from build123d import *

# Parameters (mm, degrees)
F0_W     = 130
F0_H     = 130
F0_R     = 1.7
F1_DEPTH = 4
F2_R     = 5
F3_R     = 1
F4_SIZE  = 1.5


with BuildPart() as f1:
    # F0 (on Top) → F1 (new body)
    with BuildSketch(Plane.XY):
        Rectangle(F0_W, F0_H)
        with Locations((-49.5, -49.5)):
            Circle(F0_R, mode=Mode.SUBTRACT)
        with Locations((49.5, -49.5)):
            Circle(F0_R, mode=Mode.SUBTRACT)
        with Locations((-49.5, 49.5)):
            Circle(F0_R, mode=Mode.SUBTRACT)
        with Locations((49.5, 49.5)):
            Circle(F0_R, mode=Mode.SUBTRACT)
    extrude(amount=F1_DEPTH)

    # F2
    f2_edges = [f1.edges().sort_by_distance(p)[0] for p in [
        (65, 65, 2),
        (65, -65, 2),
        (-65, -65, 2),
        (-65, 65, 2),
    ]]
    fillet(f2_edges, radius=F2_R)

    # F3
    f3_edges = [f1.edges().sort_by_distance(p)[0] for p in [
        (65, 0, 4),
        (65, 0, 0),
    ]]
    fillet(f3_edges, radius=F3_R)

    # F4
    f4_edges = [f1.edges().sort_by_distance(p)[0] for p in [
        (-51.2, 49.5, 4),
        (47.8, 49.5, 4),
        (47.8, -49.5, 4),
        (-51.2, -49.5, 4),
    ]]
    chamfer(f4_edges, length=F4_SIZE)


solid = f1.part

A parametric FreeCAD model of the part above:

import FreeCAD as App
import Part
import Sketcher
from FreeCAD import Vector
Q = App.Units.Quantity


def edges_at(feature, points):
    """Names of the edges that pass closest to the given points."""
    edges = feature.Shape.Edges
    near = lambda p: min(range(len(edges)), key=lambda i: edges[i].distToShape(Part.Vertex(*p))[0])
    return sorted({f"Edge{near(p) + 1}" for p in points})

doc = App.newDocument("Part")
body = doc.addObject("PartDesign::Body", "Body")

# Sketch on XY plane
sketch1 = doc.addObject("Sketcher::SketchObject", "Sketch")
body.addObject(sketch1)
sketch1.AttachmentSupport = (doc.XY_Plane, [""])
sketch1.MapMode = "FlatFace"
sketch1.addGeometry(Part.LineSegment(Vector(-65, 65, 0), Vector(-65, -65, 0)), False)
sketch1.addGeometry(Part.LineSegment(Vector(-65, -65, 0), Vector(65, -65, 0)), False)
sketch1.addGeometry(Part.LineSegment(Vector(65, -65, 0), Vector(65, 65, 0)), False)
sketch1.addGeometry(Part.LineSegment(Vector(65, 65, 0), Vector(-65, 65, 0)), False)
sketch1.addGeometry(Part.Circle(Vector(-49.5, -49.5, 0), Vector(0, 0, 1), 1.7), False)
sketch1.addGeometry(Part.Circle(Vector(49.5, -49.5, 0), Vector(0, 0, 1), 1.7), False)
sketch1.addGeometry(Part.Circle(Vector(-49.5, 49.5, 0), Vector(0, 0, 1), 1.7), False)
sketch1.addGeometry(Part.Circle(Vector(49.5, 49.5, 0), Vector(0, 0, 1), 1.7), False)
sketch1.addConstraint(Sketcher.Constraint("Coincident", 0, 2, 1, 1))
sketch1.addConstraint(Sketcher.Constraint("Coincident", 1, 2, 2, 1))
sketch1.addConstraint(Sketcher.Constraint("Coincident", 2, 2, 3, 1))
sketch1.addConstraint(Sketcher.Constraint("Coincident", 3, 2, 0, 1))
sketch1.addConstraint(Sketcher.Constraint("Vertical", 0))
sketch1.addConstraint(Sketcher.Constraint("Horizontal", 1))
sketch1.addConstraint(Sketcher.Constraint("Vertical", 2))
sketch1.addConstraint(Sketcher.Constraint("Horizontal", 3))
sketch1.addConstraint(Sketcher.Constraint("Equal", 4, 5))
sketch1.addConstraint(Sketcher.Constraint("Equal", 5, 6))
sketch1.addConstraint(Sketcher.Constraint("Equal", 6, 7))
sketch1.addConstraint(Sketcher.Constraint("Symmetric", 5, 3, 6, 3, -1, 1))
sketch1.addConstraint(Sketcher.Constraint("Symmetric", 4, 3, 7, 3, -1, 1))
sketch1.addConstraint(Sketcher.Constraint("Symmetric", 0, 2, 2, 2, -1, 1))
sketch1.addConstraint(Sketcher.Constraint("Symmetric", 4, 3, 5, 3, -2))
sketch1.addConstraint(Sketcher.Constraint("Equal", 3, 0))
sketch1.addConstraint(Sketcher.Constraint("Diameter", 4, Q("3.4 mm")))
sketch1.addConstraint(Sketcher.Constraint("DistanceX", 1, 1, 1, 2, Q("130 mm")))
sketch1.addConstraint(Sketcher.Constraint("DistanceX", 4, 3, 5, 3, Q("99 mm")))
sketch1.addConstraint(Sketcher.Constraint("DistanceY", 4, 3, 6, 3, Q("99 mm")))
pad1 = doc.addObject("PartDesign::Pad", "Pad")
body.addObject(pad1)
pad1.Profile = sketch1
pad1.Length = 4
doc.recompute()

fillet = doc.addObject("PartDesign::Fillet", "Fillet")
body.addObject(fillet)
fillet.Base = (pad1, edges_at(pad1, [
    (65, 65, 2),
    (65, -65, 2),
    (-65, -65, 2),
    (-65, 65, 2),
]))
fillet.Radius = 5
doc.recompute()

fillet2 = doc.addObject("PartDesign::Fillet", "Fillet001")
body.addObject(fillet2)
fillet2.Base = (fillet, edges_at(fillet, [(65, 0, 4), (65, 0, 0)]))
fillet2.Radius = 1
doc.recompute()

chamfer = doc.addObject("PartDesign::Chamfer", "Chamfer")
body.addObject(chamfer)
chamfer.Base = (fillet2, edges_at(fillet2, [
    (-51.2, 49.5, 4),
    (47.8, 49.5, 4),
    (47.8, -49.5, 4),
    (-51.2, -49.5, 4),
]))
chamfer.Size = 1.5

doc.recompute()
